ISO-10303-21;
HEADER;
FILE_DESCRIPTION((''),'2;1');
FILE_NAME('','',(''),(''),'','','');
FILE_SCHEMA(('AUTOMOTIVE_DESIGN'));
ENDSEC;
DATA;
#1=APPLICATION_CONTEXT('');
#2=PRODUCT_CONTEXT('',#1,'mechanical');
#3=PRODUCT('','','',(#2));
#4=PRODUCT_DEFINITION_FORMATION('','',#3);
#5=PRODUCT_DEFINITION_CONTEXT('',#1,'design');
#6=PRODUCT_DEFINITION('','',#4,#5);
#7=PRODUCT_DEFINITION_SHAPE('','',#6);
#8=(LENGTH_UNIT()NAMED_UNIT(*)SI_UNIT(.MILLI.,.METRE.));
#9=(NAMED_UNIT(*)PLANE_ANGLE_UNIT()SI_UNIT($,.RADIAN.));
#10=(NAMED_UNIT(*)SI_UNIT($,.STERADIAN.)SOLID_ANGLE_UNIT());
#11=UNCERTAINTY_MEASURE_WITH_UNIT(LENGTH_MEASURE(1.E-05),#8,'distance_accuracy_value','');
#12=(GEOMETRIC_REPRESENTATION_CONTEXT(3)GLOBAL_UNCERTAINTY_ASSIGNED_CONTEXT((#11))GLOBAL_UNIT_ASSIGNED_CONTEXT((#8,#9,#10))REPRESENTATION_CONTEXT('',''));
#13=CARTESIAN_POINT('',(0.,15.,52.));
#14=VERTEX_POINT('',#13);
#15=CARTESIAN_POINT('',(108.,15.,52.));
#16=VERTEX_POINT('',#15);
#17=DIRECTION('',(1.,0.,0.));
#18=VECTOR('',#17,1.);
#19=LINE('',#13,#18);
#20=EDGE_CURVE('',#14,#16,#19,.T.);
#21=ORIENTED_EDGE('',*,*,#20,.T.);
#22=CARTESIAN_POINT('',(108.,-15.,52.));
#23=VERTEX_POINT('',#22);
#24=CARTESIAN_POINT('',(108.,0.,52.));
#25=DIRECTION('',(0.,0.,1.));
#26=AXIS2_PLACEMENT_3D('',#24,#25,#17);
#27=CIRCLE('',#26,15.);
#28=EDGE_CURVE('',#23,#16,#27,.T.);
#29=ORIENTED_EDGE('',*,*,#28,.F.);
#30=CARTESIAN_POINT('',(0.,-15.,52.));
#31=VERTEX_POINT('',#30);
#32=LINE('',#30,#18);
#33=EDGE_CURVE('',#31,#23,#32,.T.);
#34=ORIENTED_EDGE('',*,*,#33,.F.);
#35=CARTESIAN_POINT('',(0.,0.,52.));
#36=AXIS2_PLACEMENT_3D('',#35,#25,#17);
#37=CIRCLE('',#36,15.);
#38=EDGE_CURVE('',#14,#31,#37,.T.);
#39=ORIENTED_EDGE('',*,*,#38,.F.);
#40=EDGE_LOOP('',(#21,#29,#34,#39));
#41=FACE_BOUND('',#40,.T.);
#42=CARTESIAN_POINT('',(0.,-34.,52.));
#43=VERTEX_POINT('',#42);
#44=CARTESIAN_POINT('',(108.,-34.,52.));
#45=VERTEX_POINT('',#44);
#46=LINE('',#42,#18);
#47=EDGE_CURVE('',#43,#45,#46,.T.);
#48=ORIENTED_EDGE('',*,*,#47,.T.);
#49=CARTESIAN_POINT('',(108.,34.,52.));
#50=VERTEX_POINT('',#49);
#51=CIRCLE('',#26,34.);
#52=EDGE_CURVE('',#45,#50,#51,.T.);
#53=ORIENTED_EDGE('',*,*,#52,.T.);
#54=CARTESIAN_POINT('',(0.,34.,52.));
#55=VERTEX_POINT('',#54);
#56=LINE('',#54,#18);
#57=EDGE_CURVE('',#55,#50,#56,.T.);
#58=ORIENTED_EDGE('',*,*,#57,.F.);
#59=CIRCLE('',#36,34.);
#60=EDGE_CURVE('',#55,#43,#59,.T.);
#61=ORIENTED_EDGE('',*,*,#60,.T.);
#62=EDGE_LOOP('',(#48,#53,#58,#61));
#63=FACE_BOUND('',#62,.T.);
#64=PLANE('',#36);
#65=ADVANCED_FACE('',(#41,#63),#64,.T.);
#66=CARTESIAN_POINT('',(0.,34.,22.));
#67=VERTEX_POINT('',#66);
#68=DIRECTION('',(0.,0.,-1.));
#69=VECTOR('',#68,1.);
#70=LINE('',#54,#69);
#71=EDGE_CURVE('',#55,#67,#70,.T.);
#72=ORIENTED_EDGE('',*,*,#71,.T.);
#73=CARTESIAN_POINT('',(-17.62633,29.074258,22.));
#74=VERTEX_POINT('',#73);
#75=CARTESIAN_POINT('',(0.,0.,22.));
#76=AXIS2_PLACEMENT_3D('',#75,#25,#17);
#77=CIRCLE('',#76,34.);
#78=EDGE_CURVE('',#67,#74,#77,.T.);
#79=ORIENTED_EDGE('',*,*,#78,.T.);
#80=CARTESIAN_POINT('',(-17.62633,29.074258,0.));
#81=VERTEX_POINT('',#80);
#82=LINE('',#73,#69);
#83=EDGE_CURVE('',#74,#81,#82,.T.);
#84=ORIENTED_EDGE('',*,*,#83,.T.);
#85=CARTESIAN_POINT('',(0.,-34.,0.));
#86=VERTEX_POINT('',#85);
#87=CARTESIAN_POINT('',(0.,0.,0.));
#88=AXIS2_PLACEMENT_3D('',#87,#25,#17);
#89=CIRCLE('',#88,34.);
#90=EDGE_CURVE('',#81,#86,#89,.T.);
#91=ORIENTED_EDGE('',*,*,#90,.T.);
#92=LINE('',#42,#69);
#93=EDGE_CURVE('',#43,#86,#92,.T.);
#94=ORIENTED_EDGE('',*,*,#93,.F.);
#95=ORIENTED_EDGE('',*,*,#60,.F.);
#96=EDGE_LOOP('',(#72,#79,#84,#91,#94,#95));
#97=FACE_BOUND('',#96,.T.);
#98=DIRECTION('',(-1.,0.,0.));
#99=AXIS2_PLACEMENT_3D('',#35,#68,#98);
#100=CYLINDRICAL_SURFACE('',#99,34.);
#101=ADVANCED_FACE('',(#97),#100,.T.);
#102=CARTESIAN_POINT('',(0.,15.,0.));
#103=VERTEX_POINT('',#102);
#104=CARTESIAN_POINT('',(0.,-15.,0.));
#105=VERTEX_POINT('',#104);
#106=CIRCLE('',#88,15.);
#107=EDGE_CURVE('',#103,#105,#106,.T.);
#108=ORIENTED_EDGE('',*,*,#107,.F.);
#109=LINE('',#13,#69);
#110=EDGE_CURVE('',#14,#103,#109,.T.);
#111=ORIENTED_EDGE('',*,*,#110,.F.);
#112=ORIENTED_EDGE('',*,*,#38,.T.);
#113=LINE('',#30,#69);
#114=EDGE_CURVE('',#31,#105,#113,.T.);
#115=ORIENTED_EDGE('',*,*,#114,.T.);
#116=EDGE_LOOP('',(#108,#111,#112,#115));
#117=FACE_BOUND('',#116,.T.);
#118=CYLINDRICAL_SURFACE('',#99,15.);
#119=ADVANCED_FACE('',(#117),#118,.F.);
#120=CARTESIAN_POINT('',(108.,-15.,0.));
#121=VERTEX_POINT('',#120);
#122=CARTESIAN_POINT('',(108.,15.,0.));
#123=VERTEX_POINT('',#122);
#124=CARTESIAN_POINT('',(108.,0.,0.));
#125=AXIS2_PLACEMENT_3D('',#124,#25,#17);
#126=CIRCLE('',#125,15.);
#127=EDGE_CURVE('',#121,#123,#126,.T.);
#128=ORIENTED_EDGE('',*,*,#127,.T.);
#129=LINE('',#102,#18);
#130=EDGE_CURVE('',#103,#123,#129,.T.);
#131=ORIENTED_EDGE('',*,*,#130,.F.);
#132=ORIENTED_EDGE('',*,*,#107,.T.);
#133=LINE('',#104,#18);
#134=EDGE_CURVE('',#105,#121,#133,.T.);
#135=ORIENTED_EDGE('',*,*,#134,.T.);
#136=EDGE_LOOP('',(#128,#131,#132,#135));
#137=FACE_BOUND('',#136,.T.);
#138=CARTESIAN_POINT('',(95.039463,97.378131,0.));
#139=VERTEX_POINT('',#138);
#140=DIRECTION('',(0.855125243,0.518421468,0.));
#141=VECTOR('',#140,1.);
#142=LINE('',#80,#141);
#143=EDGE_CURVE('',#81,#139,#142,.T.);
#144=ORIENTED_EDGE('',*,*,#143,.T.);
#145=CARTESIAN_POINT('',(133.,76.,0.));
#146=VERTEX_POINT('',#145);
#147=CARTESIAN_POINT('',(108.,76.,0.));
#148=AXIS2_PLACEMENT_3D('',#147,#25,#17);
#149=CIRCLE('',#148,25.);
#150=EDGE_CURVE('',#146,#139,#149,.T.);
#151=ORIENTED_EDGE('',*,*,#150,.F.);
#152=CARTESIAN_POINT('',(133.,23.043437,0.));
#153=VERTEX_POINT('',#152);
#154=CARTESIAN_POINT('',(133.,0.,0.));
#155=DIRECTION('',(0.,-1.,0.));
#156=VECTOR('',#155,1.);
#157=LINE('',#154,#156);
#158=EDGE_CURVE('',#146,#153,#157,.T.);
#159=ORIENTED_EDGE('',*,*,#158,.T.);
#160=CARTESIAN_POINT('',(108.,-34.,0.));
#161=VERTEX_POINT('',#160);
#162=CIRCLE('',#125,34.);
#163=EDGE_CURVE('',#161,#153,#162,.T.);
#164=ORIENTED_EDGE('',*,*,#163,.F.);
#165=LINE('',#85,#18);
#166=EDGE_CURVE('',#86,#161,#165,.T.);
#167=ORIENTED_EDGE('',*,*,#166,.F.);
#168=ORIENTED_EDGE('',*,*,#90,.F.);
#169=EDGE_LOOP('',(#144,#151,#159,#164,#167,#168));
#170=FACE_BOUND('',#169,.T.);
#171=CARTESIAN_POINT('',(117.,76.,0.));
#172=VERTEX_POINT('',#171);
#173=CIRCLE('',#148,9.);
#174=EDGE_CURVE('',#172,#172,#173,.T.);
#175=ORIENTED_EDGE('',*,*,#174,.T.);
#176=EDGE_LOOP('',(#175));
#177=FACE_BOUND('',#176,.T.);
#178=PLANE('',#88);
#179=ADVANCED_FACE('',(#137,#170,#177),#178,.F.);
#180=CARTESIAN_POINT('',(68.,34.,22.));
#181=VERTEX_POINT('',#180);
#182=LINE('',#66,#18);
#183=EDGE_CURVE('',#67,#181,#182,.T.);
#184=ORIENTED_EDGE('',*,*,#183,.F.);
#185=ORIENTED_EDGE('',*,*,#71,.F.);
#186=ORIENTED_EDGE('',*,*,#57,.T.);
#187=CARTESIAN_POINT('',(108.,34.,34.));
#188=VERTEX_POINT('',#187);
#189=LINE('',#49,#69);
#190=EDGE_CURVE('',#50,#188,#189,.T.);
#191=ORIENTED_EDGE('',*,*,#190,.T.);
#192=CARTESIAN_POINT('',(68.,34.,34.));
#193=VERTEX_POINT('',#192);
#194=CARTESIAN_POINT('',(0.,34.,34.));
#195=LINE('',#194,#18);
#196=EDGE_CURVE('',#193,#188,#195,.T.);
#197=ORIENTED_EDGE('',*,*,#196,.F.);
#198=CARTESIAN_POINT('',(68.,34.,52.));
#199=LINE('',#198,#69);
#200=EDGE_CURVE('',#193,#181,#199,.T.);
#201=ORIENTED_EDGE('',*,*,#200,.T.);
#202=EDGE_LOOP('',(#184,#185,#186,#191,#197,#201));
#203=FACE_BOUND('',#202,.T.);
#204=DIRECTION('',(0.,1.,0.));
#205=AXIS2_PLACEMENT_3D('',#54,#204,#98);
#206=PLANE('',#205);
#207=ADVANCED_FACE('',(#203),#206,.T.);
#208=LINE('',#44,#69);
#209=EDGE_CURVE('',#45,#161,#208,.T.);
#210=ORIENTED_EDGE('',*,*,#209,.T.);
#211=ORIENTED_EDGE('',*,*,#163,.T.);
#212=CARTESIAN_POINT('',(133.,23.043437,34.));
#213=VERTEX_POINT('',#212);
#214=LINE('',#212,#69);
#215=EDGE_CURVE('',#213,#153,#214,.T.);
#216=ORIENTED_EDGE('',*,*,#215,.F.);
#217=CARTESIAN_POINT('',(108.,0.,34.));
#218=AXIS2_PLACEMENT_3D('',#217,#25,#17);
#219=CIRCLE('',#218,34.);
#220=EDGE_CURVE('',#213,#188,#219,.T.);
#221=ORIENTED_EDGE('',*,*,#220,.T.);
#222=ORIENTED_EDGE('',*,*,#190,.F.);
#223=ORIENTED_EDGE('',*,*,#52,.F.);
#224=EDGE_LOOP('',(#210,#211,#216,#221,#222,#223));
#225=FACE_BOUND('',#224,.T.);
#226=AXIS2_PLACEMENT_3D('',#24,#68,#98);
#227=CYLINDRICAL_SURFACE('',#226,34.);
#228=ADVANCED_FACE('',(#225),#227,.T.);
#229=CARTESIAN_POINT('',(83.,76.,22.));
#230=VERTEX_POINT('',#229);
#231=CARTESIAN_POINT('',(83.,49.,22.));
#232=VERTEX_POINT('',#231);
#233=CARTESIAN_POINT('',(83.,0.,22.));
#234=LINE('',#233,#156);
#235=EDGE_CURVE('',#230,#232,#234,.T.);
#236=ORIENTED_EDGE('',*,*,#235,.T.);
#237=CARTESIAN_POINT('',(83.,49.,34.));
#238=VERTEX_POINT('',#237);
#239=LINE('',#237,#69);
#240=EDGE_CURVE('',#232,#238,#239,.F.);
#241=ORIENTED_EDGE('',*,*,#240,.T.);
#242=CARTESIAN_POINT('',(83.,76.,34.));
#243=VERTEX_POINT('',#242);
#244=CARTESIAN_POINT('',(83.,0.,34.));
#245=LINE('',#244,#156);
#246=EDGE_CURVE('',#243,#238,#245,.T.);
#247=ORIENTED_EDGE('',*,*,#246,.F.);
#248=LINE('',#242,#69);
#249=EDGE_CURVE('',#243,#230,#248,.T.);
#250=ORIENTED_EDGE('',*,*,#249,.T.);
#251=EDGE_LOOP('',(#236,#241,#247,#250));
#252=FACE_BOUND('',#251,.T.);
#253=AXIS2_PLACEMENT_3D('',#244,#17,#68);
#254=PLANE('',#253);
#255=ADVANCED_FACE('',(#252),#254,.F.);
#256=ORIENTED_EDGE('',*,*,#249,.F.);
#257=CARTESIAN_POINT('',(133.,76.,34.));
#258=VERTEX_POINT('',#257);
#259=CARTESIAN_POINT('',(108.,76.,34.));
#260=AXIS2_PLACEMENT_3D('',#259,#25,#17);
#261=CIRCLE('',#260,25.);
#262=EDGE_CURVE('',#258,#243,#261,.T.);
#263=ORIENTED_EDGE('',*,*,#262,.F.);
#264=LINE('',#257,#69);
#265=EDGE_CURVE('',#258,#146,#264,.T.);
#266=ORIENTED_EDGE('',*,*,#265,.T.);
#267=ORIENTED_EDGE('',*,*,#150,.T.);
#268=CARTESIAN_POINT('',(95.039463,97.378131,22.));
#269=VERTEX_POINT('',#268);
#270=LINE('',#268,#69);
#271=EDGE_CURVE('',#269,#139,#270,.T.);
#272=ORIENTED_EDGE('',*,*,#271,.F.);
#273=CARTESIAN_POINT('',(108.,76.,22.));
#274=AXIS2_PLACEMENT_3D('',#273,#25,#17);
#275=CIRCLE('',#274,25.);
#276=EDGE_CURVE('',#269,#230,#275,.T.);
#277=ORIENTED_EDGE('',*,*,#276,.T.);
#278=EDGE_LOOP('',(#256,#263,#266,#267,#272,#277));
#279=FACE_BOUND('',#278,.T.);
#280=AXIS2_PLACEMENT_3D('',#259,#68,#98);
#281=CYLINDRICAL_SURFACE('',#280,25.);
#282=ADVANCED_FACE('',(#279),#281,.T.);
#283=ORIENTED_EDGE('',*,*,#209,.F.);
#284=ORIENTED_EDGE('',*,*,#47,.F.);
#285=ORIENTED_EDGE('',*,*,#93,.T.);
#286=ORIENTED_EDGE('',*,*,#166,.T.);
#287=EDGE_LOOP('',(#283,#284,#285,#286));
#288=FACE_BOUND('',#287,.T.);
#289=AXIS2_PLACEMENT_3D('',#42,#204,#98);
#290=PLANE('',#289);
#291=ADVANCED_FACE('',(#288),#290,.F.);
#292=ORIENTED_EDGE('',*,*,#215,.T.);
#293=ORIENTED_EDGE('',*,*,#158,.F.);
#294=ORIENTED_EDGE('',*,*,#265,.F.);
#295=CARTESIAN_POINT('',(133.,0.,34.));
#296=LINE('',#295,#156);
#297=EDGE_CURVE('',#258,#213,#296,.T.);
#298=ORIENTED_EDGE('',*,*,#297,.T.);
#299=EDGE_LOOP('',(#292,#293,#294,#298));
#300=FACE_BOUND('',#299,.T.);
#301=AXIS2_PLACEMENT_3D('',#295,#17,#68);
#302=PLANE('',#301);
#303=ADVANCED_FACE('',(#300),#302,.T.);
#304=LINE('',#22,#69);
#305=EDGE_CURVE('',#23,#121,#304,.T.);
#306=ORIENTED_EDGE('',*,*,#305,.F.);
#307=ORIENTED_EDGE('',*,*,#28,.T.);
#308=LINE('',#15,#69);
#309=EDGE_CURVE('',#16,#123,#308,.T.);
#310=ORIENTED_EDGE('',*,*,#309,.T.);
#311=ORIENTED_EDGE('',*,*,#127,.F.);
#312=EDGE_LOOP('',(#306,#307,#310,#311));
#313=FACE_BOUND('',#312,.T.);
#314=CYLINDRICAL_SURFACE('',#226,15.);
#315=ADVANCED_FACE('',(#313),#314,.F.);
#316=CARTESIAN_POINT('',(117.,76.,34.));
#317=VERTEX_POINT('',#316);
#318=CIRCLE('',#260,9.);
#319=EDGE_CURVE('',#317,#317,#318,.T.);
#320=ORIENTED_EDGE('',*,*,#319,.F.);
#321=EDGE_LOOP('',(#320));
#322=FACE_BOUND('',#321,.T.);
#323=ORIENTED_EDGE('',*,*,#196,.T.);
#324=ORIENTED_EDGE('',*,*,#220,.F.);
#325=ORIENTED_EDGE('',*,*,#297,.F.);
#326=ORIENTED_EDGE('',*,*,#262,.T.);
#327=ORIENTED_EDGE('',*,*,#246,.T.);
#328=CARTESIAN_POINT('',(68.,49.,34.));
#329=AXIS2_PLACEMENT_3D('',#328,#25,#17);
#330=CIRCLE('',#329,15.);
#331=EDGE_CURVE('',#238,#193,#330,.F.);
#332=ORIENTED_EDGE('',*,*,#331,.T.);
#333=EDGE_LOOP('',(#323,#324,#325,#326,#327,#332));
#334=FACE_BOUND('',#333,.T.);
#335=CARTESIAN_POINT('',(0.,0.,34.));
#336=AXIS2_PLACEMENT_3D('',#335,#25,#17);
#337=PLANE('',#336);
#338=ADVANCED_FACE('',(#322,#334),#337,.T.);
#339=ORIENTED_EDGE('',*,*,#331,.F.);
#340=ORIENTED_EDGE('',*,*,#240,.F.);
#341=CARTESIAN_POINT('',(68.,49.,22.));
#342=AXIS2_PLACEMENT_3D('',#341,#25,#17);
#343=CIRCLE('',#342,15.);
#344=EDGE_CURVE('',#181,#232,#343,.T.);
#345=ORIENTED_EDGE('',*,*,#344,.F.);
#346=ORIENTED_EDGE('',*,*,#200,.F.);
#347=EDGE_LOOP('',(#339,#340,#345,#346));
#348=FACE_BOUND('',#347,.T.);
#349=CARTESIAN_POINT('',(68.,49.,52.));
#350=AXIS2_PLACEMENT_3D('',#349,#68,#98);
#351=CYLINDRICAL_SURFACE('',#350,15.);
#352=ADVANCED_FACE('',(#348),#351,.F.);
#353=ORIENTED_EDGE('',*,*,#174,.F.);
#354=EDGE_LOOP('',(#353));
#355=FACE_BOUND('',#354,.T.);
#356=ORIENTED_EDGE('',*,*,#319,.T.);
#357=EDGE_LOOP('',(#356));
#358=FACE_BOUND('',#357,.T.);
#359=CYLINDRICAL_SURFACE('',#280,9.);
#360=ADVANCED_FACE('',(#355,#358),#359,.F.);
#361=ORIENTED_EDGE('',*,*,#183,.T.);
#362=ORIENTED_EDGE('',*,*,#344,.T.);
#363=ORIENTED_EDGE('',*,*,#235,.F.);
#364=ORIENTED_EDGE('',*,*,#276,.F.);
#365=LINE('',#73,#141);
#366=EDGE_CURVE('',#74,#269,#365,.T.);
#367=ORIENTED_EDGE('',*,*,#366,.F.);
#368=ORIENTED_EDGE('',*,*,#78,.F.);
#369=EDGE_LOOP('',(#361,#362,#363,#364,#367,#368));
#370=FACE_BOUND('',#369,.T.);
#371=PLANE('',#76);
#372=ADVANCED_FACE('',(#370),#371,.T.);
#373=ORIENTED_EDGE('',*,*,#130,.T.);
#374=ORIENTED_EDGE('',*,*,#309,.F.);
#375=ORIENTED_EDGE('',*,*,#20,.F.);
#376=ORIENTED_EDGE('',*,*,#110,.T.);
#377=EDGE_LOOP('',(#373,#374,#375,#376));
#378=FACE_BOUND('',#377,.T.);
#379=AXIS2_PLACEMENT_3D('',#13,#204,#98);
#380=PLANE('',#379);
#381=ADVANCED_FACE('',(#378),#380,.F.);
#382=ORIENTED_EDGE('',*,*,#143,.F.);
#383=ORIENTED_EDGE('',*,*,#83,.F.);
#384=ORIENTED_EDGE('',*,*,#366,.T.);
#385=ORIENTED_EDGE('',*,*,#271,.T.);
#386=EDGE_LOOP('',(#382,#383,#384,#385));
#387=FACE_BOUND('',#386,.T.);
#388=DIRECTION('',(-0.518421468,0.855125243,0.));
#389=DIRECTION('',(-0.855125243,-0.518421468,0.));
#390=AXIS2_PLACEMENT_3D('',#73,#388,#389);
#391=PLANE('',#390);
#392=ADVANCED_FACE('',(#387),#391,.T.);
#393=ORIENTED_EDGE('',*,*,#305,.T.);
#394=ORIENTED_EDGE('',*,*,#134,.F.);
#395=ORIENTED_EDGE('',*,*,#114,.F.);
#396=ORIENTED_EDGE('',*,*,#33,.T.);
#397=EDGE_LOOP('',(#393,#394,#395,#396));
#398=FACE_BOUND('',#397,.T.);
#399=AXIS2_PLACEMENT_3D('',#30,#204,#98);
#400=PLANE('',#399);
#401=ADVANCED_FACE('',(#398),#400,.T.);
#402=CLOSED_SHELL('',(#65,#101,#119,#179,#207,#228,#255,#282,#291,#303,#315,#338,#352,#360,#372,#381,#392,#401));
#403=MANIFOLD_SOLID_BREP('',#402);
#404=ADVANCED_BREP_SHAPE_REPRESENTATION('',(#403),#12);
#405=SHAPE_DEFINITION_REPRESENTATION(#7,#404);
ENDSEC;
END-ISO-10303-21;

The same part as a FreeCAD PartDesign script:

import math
import FreeCAD as App
import Part
import Sketcher


def edges_at(feature, points):
    """Names of the edges that pass closest to the given points."""
    edges = feature.Shape.Edges
    near = lambda p: min(range(len(edges)), key=lambda i: edges[i].distToShape(Part.Vertex(*p))[0])
    return sorted({f"Edge{near(p) + 1}" for p in points})

doc = App.newDocument("Part")
body = doc.addObject("PartDesign::Body", "Body")

sketch1 = body.newObject("Sketcher::SketchObject", "Sketch")
sketch1.AttachmentSupport = (doc.getObject("XY_Plane"), [""])
sketch1.MapMode = "FlatFace"
sketch1.addGeometry([
    Part.LineSegment(App.Vector(108, 34, 0), App.Vector(0, 34, 0)),
    Part.ArcOfCircle(Part.Circle(App.Vector(0, 0, 0), App.Vector(0, 0, 1), 34), math.radians(90), math.radians(270)),
    Part.LineSegment(App.Vector(0, -34, 0), App.Vector(108, -34, 0)),
    Part.ArcOfCircle(Part.Circle(App.Vector(108, 0, 0), App.Vector(0, 0, 1), 34), math.radians(-90), math.radians(90)),
    Part.LineSegment(App.Vector(108, -15, 0), App.Vector(0, -15, 0)),
    Part.ArcOfCircle(Part.Circle(App.Vector(0, 0, 0), App.Vector(0, 0, 1), 15), math.radians(90), math.radians(270)),
    Part.LineSegment(App.Vector(0, 15, 0), App.Vector(108, 15, 0)),
    Part.ArcOfCircle(Part.Circle(App.Vector(108, 0, 0), App.Vector(0, 0, 1), 15), math.radians(-90), math.radians(90)),
], False)
sketch1.addConstraint([
    Sketcher.Constraint("Tangent", 0, 2, 1, 1),
    Sketcher.Constraint("Tangent", 1, 2, 2, 1),
    Sketcher.Constraint("Tangent", 2, 2, 3, 1),
    Sketcher.Constraint("Tangent", 3, 2, 0, 1),
    Sketcher.Constraint("Tangent", 4, 2, 5, 2),
    Sketcher.Constraint("Tangent", 5, 1, 6, 1),
    Sketcher.Constraint("Tangent", 6, 2, 7, 2),
    Sketcher.Constraint("Tangent", 7, 1, 4, 1),
    Sketcher.Constraint("Horizontal", 0),
    Sketcher.Constraint("Horizontal", 2),
    Sketcher.Constraint("Horizontal", 4),
    Sketcher.Constraint("Horizontal", 6),
    Sketcher.Constraint("Coincident", 1, 3, -1, 1),
    Sketcher.Constraint("Coincident", 5, 3, -1, 1),
    Sketcher.Constraint("Vertical", 7, 3, 2, 2),
    Sketcher.Constraint("Radius", 1, 34.0),
    Sketcher.Constraint("Radius", 5, 15.0),
    Sketcher.Constraint("DistanceX", 0, 2, 0, 1, 108.0),
])
pad1 = body.newObject("PartDesign::Pad", "Pad")
pad1.Profile = sketch1
pad1.Length = 52

sketch2 = body.newObject("Sketcher::SketchObject", "Sketch001")
sketch2.AttachmentSupport = (doc.getObject("XY_Plane"), [""])
sketch2.MapMode = "FlatFace"
sketch2.addGeometry([
    Part.ArcOfCircle(Part.Circle(App.Vector(0, 0, 0), App.Vector(0, 0, 1), 34), math.radians(90), math.radians(121)),
    Part.LineSegment(App.Vector(0, 34, 0), App.Vector(83, 34, 0)),
    Part.LineSegment(App.Vector(83, 34, 0), App.Vector(83, 76, 0)),
    Part.ArcOfCircle(Part.Circle(App.Vector(108, 76, 0), App.Vector(0, 0, 1), 25), math.radians(121), math.radians(180)),
    Part.LineSegment(App.Vector(95, 97, 0), App.Vector(-18, 29, 0)),
], False)
sketch2.addConstraint([
    Sketcher.Constraint("Tangent", 0, 1, 1, 1),
    Sketcher.Constraint("Coincident", 1, 2, 2, 1),
    Sketcher.Constraint("Tangent", 2, 2, 3, 2),
    Sketcher.Constraint("Tangent", 3, 1, 4, 1),
    Sketcher.Constraint("Tangent", 4, 2, 0, 2),
    Sketcher.Constraint("Horizontal", 1),
    Sketcher.Constraint("Vertical", 2),
    Sketcher.Constraint("Coincident", 0, 3, -1, 1),
    Sketcher.Constraint("Radius", 0, 34.0),
    Sketcher.Constraint("Radius", 3, 25.0),
    Sketcher.Constraint("DistanceX", 1, 1, 1, 2, 83.0),
    Sketcher.Constraint("DistanceY", 2, 1, 2, 2, 42.0),
])
pad2 = body.newObject("PartDesign::Pad", "Pad001")
pad2.Profile = sketch2
pad2.Length = 22

sketch3 = body.newObject("Sketcher::SketchObject", "Sketch002")
sketch3.AttachmentSupport = (doc.getObject("XY_Plane"), [""])
sketch3.MapMode = "FlatFace"
sketch3.addGeometry([
    Part.LineSegment(App.Vector(83, 76, 0), App.Vector(83, 34, 0)),
    Part.LineSegment(App.Vector(83, 34, 0), App.Vector(108, 34, 0)),
    Part.ArcOfCircle(Part.Circle(App.Vector(108, 0, 0), App.Vector(0, 0, 1), 34), math.radians(43), math.radians(90)),
    Part.LineSegment(App.Vector(133, 23, 0), App.Vector(133, 76, 0)),
    Part.ArcOfCircle(Part.Circle(App.Vector(108, 76, 0), App.Vector(0, 0, 1), 25), math.radians(0), math.radians(121)),
    Part.ArcOfCircle(Part.Circle(App.Vector(108, 76, 0), App.Vector(0, 0, 1), 25), math.radians(121), math.radians(180)),
    Part.Circle(App.Vector(108, 76, 0), App.Vector(0, 0, 1), 9),
], False)
sketch3.addConstraint([
    Sketcher.Constraint("Coincident", 0, 2, 1, 1),
    Sketcher.Constraint("Tangent", 1, 2, 2, 2),
    Sketcher.Constraint("Coincident", 2, 1, 3, 1),
    Sketcher.Constraint("Tangent", 3, 2, 4, 1),
    Sketcher.Constraint("Tangent", 4, 2, 5, 1),
    Sketcher.Constraint("Tangent", 5, 2, 0, 1),
    Sketcher.Constraint("Vertical", 0),
    Sketcher.Constraint("Horizontal", 1),
    Sketcher.Constraint("Vertical", 3),
    Sketcher.Constraint("Coincident", 6, 3, 4, 3),
    Sketcher.Constraint("Equal", 4, 5),
    Sketcher.Constraint("PointOnObject", 2, 3, -1),
    Sketcher.Constraint("Vertical", 2, 3, 4, 3),
    Sketcher.Constraint("Diameter", 6, 18.0),
    Sketcher.Constraint("Radius", 2, 34.0),
    Sketcher.Constraint("Radius", 4, 25.0),
    Sketcher.Constraint("DistanceY", 0, 2, 0, 1, 42.0),
    Sketcher.Constraint("DistanceX", -1, 1, 2, 3, 108.0),
    Sketcher.Constraint("DistanceY", -1, 1, 4, 2, 97.378131),
])
pad3 = body.newObject("PartDesign::Pad", "Pad002")
pad3.Profile = sketch3
pad3.Length = 34
doc.recompute()

fillet = body.newObject("PartDesign::Fillet", "Fillet")
fillet.Base = (pad3, edges_at(pad3, [(83, 34, 28)]))
fillet.Radius = 15

doc.recompute()
